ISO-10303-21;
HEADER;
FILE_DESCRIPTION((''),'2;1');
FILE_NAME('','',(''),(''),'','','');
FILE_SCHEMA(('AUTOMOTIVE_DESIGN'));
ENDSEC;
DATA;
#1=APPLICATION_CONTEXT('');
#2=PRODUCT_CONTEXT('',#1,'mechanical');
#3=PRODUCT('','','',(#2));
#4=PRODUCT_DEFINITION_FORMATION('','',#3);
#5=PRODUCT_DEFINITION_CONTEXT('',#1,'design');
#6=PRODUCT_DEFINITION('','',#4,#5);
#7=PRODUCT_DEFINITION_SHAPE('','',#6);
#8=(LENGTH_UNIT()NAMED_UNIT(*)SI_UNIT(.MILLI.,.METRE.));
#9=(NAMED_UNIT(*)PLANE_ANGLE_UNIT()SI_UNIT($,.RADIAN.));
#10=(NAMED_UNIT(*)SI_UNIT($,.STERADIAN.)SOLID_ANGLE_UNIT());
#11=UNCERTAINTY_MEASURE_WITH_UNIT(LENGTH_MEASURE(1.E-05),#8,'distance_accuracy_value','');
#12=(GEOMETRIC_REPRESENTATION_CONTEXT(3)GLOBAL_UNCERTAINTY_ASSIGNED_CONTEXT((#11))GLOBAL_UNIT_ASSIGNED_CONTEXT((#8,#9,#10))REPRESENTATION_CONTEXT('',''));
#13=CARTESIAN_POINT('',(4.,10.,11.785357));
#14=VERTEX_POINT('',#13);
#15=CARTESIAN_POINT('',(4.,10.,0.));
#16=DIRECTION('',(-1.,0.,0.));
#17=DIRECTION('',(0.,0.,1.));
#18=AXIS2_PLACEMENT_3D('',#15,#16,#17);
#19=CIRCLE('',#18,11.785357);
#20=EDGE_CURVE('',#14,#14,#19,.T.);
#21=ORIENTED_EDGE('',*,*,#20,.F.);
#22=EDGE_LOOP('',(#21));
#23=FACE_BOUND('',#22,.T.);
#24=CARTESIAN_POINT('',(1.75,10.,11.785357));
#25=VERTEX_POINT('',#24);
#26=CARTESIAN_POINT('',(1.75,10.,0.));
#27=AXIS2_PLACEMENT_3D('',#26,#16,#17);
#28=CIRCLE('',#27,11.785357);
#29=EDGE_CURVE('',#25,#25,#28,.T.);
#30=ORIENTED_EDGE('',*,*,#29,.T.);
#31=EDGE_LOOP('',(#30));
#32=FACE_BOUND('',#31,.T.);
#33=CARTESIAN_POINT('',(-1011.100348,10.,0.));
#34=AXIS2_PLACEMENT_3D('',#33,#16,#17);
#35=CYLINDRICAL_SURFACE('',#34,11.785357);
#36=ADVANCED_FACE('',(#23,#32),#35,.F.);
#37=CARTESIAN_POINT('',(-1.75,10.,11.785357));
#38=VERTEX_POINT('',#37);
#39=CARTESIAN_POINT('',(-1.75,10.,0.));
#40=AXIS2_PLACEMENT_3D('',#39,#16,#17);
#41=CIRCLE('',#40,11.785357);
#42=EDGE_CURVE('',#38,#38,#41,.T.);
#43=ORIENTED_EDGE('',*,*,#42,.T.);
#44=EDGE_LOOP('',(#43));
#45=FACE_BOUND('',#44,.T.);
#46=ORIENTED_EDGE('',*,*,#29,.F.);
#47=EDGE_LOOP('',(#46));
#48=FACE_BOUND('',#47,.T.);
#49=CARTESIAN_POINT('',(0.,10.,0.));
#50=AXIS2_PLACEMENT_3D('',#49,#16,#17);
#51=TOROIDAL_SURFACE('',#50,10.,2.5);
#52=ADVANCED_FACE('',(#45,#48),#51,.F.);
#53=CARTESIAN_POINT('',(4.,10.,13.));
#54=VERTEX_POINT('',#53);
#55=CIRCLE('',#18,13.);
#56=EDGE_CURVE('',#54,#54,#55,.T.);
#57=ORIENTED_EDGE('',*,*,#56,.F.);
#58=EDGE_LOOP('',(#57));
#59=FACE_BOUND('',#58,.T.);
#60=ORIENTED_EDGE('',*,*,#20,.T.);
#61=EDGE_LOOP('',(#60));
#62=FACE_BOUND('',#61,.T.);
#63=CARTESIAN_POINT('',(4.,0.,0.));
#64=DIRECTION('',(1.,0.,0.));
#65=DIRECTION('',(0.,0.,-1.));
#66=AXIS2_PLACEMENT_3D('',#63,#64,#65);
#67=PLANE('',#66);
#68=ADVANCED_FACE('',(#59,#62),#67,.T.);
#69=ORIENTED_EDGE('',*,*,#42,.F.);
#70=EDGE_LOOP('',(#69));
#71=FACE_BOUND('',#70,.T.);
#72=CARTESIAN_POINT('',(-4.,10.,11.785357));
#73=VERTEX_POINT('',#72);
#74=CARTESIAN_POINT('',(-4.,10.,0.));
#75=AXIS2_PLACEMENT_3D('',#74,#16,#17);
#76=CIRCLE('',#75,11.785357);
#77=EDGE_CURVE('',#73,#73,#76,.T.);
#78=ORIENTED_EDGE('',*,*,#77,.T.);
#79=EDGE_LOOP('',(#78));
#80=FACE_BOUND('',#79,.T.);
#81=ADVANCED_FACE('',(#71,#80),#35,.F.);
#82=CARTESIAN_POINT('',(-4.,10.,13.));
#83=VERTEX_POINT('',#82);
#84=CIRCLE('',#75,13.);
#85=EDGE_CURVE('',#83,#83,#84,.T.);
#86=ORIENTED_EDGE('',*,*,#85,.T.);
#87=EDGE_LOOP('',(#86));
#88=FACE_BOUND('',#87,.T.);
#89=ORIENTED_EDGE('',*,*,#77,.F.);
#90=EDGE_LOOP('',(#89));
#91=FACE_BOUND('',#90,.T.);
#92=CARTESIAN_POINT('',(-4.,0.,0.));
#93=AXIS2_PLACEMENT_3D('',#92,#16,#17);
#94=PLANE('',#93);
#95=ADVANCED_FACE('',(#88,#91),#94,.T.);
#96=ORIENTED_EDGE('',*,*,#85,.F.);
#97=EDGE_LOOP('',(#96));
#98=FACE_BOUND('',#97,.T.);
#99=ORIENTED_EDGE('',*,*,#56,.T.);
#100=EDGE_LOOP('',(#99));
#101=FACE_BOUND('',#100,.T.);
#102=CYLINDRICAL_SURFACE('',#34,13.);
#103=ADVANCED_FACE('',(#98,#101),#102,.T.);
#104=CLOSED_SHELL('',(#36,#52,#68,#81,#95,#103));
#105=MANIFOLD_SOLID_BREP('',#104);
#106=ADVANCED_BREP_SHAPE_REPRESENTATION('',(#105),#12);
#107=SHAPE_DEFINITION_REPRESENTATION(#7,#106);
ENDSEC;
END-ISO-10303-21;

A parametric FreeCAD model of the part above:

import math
import FreeCAD as App
import Part
import Sketcher
from FreeCAD import Vector

doc = App.newDocument("Part")
body = doc.addObject("PartDesign::Body", "Body")

# Sketch on XY plane
sketch1 = body.newObject("Sketcher::SketchObject", "Sketch")
sketch1.AttachmentSupport = (doc.getObject("XY_Plane"), [""])
sketch1.MapMode = "FlatFace"
sketch1.addGeometry(Part.ArcOfCircle(Part.Circle(Vector(0, 0, 0), Vector(0, 0, 1), 2.5), math.radians(-134), math.radians(-46)), False)
sketch1.addGeometry(Part.LineSegment(Vector(-1.8, -1.8, 0), Vector(-4, -1.8, 0)), False)
sketch1.addGeometry(Part.LineSegment(Vector(-4, -1.8, 0), Vector(-4, -3, 0)), False)
sketch1.addGeometry(Part.LineSegment(Vector(-4, -3, 0), Vector(4, -3, 0)), False)
sketch1.addGeometry(Part.LineSegment(Vector(4, -3, 0), Vector(4, -1.8, 0)), False)
sketch1.addGeometry(Part.LineSegment(Vector(4, -1.8, 0), Vector(1.8, -1.8, 0)), False)
sketch1.addGeometry(Part.LineSegment(Vector(-4, 10, 0), Vector(4, 10, 0)), True)  # axis
sketch1.addConstraint(Sketcher.Constraint("Coincident", 0, 1, 1, 1))
sketch1.addConstraint(Sketcher.Constraint("Coincident", 1, 2, 2, 1))
sketch1.addConstraint(Sketcher.Constraint("Coincident", 2, 2, 3, 1))
sketch1.addConstraint(Sketcher.Constraint("Coincident", 3, 2, 4, 1))
sketch1.addConstraint(Sketcher.Constraint("Coincident", 4, 2, 5, 1))
sketch1.addConstraint(Sketcher.Constraint("Coincident", 5, 2, 0, 2))
sketch1.addConstraint(Sketcher.Constraint("Horizontal", 1))
sketch1.addConstraint(Sketcher.Constraint("Vertical", 2))
sketch1.addConstraint(Sketcher.Constraint("Horizontal", 3))
sketch1.addConstraint(Sketcher.Constraint("Vertical", 4))
sketch1.addConstraint(Sketcher.Constraint("Horizontal", 5))
sketch1.addConstraint(Sketcher.Constraint("Horizontal", 6))
sketch1.addConstraint(Sketcher.Constraint("Coincident", 0, 3, -1, 1))
sketch1.addConstraint(Sketcher.Constraint("Symmetric", 1, 2, 4, 2, -2))
sketch1.addConstraint(Sketcher.Constraint("Vertical", 2, 2, 6, 1))
sketch1.addConstraint(Sketcher.Constraint("Vertical", 4, 2, 6, 2))
sketch1.addConstraint(Sketcher.Constraint("Radius", 0, 2.5))
sketch1.addConstraint(Sketcher.Constraint("DistanceX", 3, 1, 3, 2, 8.0))
sketch1.addConstraint(Sketcher.Constraint("DistanceY", 2, 2, -1, 1, 3.0))
sketch1.addConstraint(Sketcher.Constraint("DistanceY", -1, 1, 6, 1, 10.0))
sketch1.addConstraint(Sketcher.Constraint("DistanceX", 1, 2, 1, 1, 2.25))
revolution = body.newObject("PartDesign::Revolution", "Revolution")
revolution.Profile = sketch1
revolution.ReferenceAxis = (sketch1, ["Axis0"])
revolution.Angle = 360

doc.recompute()
